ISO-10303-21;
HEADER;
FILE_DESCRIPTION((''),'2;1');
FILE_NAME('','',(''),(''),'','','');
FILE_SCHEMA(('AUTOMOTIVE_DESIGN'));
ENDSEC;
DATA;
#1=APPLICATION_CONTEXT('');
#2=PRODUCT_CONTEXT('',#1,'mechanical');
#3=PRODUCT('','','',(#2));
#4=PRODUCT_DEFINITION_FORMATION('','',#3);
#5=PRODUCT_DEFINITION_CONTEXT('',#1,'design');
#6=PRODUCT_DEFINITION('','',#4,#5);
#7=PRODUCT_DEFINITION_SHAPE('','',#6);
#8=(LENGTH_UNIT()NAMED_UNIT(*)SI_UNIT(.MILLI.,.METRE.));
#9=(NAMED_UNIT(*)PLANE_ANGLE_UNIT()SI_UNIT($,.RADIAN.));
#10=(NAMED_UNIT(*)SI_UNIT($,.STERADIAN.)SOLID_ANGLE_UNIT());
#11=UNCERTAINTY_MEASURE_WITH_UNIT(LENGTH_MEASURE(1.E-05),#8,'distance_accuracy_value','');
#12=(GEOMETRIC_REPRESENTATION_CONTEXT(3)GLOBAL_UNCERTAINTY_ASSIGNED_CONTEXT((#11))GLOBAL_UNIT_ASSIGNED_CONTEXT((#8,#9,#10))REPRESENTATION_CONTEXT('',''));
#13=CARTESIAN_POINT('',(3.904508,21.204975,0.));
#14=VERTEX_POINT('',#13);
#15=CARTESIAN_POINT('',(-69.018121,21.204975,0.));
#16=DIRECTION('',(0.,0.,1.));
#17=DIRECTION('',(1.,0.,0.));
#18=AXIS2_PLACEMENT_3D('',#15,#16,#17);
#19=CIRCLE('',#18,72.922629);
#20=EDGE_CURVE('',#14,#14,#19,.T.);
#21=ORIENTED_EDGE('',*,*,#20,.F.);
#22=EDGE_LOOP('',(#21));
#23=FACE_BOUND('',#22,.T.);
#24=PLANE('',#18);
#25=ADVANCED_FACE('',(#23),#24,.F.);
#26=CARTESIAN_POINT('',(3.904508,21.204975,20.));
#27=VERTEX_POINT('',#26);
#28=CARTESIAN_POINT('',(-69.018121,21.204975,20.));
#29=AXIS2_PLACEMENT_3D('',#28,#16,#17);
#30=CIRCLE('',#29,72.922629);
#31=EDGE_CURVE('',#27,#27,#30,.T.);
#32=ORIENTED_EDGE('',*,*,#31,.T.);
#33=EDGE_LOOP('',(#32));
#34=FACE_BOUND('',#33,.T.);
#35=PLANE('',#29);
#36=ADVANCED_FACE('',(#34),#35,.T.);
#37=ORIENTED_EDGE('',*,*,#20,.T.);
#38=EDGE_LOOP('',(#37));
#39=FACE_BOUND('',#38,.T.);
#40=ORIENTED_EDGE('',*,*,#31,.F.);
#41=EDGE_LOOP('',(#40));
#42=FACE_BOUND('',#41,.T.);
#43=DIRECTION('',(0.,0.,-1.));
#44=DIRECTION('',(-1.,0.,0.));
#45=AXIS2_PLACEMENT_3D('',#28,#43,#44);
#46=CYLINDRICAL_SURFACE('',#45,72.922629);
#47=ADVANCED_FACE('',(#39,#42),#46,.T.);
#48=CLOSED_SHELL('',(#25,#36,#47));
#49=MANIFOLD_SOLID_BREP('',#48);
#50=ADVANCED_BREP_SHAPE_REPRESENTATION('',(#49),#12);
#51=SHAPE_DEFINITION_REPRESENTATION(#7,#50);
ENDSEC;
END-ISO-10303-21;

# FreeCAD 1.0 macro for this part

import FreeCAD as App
import Part
import Sketcher
Q = App.Units.Quantity

doc = App.newDocument("Part")
params = doc.addObject("Spreadsheet::Sheet", "Params")
for row, (alias, value) in enumerate([
    ("pad1_length", "20 mm"),
], start=1):
    params.set(f"A{row}", alias)
    params.set(f"B{row}", "=" + value)
    params.setAlias(f"B{row}", alias)

body = doc.addObject("PartDesign::Body", "Body")

# Sketch on XY plane
sketch1 = body.newObject("Sketcher::SketchObject", "Sketch")
sketch1.AttachmentSupport = (doc.getObject("XY_Plane"), [""])
sketch1.MapMode = "FlatFace"
sketch1.addGeometry(Part.Circle(App.Vector(-69, 21, 0), App.Vector(0, 0, 1), 73), False)
sketch1.addConstraint(Sketcher.Constraint("Diameter", 0, Q("145.845259 mm")))
sketch1.addConstraint(Sketcher.Constraint("DistanceX", 0, 3, -1, 1, Q("69.018121 mm")))
sketch1.addConstraint(Sketcher.Constraint("DistanceY", -1, 1, 0, 3, Q("21.204975 mm")))
pad1 = body.newObject("PartDesign::Pad", "Pad")
pad1.Profile = sketch1
pad1.setExpression("Length", "Params.pad1_length")

doc.recompute()
